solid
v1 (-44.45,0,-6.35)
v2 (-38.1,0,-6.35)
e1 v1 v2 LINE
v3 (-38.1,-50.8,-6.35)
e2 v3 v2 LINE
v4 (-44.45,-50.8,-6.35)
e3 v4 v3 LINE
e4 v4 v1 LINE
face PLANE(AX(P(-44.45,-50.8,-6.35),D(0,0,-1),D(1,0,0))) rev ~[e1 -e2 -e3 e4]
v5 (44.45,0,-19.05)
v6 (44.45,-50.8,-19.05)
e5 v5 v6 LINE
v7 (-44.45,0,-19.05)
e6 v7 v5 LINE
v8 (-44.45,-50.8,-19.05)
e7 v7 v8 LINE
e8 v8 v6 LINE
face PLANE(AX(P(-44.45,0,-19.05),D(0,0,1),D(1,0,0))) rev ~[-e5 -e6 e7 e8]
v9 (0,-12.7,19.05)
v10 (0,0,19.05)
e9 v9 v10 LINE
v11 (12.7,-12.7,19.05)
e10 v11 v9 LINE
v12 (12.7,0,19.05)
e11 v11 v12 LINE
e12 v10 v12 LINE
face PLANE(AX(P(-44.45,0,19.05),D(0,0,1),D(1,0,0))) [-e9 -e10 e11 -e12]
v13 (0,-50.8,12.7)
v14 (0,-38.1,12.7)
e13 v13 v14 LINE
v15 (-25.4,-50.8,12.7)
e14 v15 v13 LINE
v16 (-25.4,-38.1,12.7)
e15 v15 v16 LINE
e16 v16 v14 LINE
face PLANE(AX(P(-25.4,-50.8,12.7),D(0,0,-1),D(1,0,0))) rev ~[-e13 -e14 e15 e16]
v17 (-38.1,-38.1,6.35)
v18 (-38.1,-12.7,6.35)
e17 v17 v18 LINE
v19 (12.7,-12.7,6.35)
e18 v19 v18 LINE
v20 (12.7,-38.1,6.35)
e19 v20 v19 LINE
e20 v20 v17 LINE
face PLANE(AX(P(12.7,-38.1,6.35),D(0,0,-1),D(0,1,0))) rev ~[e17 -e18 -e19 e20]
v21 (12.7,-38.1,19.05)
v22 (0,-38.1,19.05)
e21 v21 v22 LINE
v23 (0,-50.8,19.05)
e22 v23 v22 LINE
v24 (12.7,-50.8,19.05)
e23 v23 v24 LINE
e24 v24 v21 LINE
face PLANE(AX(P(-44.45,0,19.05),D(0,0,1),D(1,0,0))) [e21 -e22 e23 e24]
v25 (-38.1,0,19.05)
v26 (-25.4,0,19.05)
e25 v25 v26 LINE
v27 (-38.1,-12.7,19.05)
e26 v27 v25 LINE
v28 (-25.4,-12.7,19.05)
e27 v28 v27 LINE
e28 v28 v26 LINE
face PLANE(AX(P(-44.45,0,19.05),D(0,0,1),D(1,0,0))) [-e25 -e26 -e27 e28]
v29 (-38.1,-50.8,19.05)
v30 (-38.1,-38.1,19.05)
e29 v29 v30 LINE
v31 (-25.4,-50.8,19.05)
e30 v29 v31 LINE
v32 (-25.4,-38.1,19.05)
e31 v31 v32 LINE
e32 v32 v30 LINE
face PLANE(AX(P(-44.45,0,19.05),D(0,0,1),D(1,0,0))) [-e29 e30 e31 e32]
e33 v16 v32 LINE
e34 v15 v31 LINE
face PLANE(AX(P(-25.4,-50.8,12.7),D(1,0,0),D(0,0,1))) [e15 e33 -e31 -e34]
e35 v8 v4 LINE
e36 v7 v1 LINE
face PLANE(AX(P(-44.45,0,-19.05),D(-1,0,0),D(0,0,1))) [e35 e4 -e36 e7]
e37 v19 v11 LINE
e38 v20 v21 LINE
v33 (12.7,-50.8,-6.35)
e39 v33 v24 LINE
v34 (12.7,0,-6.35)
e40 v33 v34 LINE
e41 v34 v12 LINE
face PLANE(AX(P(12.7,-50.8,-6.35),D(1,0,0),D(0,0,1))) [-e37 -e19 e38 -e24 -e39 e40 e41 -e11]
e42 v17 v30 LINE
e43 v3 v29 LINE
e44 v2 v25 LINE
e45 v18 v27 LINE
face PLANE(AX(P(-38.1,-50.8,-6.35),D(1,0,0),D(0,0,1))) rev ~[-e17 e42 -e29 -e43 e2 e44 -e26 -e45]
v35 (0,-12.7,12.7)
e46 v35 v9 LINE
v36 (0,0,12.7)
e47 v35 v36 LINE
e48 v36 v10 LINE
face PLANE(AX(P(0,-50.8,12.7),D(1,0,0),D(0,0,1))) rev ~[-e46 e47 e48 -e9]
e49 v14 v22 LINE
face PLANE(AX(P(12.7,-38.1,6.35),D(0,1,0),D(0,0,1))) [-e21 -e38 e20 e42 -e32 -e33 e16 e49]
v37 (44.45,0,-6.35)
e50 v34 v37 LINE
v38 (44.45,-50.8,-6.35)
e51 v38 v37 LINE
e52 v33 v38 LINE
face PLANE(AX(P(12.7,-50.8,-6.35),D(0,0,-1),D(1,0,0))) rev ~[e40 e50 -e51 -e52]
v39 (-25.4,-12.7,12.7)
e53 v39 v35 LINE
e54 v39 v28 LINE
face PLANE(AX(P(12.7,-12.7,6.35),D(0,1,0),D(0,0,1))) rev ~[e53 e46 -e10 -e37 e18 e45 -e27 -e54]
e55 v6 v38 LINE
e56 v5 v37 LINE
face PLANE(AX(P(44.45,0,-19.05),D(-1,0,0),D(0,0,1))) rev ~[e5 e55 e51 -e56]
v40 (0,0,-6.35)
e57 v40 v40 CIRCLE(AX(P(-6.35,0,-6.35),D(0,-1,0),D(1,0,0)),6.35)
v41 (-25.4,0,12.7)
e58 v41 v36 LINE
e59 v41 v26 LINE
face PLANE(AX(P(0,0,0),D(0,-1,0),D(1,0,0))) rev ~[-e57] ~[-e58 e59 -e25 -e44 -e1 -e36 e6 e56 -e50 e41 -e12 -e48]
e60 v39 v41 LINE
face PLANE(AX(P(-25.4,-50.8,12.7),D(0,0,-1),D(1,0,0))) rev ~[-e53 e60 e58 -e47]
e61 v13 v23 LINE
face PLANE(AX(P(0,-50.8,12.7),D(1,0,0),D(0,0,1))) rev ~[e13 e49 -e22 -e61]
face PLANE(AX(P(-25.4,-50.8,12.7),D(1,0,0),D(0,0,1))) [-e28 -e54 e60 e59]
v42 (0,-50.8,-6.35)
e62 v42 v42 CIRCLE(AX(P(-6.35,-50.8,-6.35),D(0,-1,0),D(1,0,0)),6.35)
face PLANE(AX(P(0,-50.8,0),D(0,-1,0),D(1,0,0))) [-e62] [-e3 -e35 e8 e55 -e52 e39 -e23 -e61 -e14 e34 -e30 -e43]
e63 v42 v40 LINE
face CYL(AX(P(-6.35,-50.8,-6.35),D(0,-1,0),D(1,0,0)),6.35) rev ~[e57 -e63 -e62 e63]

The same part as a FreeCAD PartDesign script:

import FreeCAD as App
import Part
import Sketcher
from FreeCAD import Vector
Q = App.Units.Quantity


def add_polygon(sketch, points):
    """Adds a closed chain of lines whose ends are joined by coincident constraints."""
    first, n = sketch.GeometryCount, len(points)
    for a, b in zip(points, points[1:] + points[:1]):
        sketch.addGeometry(Part.LineSegment(App.Vector(*a, 0), App.Vector(*b, 0)), False)
    for i in range(n):
        sketch.addConstraint(Sketcher.Constraint("Coincident", first + i, 2, first + (i + 1) % n, 1))

doc = App.newDocument("Part")
body = doc.addObject("PartDesign::Body", "Body")

# Sketch on XZ plane
sketch1 = body.newObject("Sketcher::SketchObject", "Sketch")
sketch1.AttachmentSupport = (doc.getObject("XZ_Plane"), [""])
sketch1.MapMode = "FlatFace"
add_polygon(sketch1, [(-44.45, 19.05), (-44.45, -19.05), (44.45, -19.05), (44.45, 19.05)])  # lines 0-3
sketch1.addConstraint(Sketcher.Constraint("Vertical", 0))
sketch1.addConstraint(Sketcher.Constraint("Horizontal", 1))
sketch1.addConstraint(Sketcher.Constraint("Vertical", 2))
sketch1.addConstraint(Sketcher.Constraint("Horizontal", 3))
sketch1.addConstraint(Sketcher.Constraint("Symmetric", 0, 2, 2, 2, -1, 1))
sketch1.addConstraint(Sketcher.Constraint("DistanceX", 1, 1, 1, 2, Q("3.5 in")))
sketch1.addConstraint(Sketcher.Constraint("DistanceY", 0, 2, 0, 1, Q("1.5 in")))
pad1 = body.newObject("PartDesign::Pad", "Pad")
pad1.Profile = sketch1
pad1.Length = Q("2 in")

# Sketch on XZ plane
sketch2 = body.newObject("Sketcher::SketchObject", "Sketch001")
sketch2.AttachmentSupport = (doc.getObject("XZ_Plane"), [""])
sketch2.MapMode = "FlatFace"
sketch2.AttachmentOffset = App.Placement(Vector(0, 0, 2 * 25.4), App.Rotation())
add_polygon(sketch2, [(12.7, 19.05), (12.7, -6.35), (44.45, -6.35), (44.45, 19.05)])  # lines 0-3
sketch2.addConstraint(Sketcher.Constraint("Vertical", 0))
sketch2.addConstraint(Sketcher.Constraint("Horizontal", 1))
sketch2.addConstraint(Sketcher.Constraint("Vertical", 2))
sketch2.addConstraint(Sketcher.Constraint("Horizontal", 3))
sketch2.addConstraint(Sketcher.Constraint("DistanceY", 0, 2, 0, 1, Q("1 in")))
sketch2.addConstraint(Sketcher.Constraint("DistanceX", 1, 1, 1, 2, Q("1.25 in")))
sketch2.addConstraint(Sketcher.Constraint("DistanceX", -1, 1, 0, 2, Q("0.5 in")))
sketch2.addConstraint(Sketcher.Constraint("DistanceY", 0, 2, -1, 1, Q("0.25 in")))
pocket1 = body.newObject("PartDesign::Pocket", "Pocket")
pocket1.Profile = sketch2
pocket1.Length = Q("2 in")

# Sketch on XZ plane
sketch3 = body.newObject("Sketcher::SketchObject", "Sketch002")
sketch3.AttachmentSupport = (doc.getObject("XZ_Plane"), [""])
sketch3.MapMode = "FlatFace"
sketch3.AttachmentOffset = App.Placement(Vector(0, 0, 2 * 25.4), App.Rotation())
add_polygon(sketch3, [(-25.4, 19.05), (-25.4, 12.7), (0, 12.7), (0, 19.05)])  # lines 0-3
sketch3.addConstraint(Sketcher.Constraint("Vertical", 0))
sketch3.addConstraint(Sketcher.Constraint("Horizontal", 1))
sketch3.addConstraint(Sketcher.Constraint("Vertical", 2))
sketch3.addConstraint(Sketcher.Constraint("Horizontal", 3))
sketch3.addConstraint(Sketcher.Constraint("PointOnObject", 1, 2, -2))
sketch3.addConstraint(Sketcher.Constraint("DistanceX", 1, 1, 1, 2, Q("1 in")))
sketch3.addConstraint(Sketcher.Constraint("DistanceY", 0, 2, 0, 1, Q("0.25 in")))
sketch3.addConstraint(Sketcher.Constraint("DistanceY", -1, 1, 0, 2, Q("0.5 in")))
pocket2 = body.newObject("PartDesign::Pocket", "Pocket001")
pocket2.Profile = sketch3
pocket2.Length = Q("2 in")

# Sketch on XZ plane
sketch4 = body.newObject("Sketcher::SketchObject", "Sketch003")
sketch4.AttachmentSupport = (doc.getObject("XZ_Plane"), [""])
sketch4.MapMode = "FlatFace"
sketch4.AttachmentOffset = App.Placement(Vector(0, 0, 2 * 25.4), App.Rotation())
add_polygon(sketch4, [(-44.45, 19.05), (-44.45, -6.35), (-38.1, -6.35), (-38.1, 19.05)])  # lines 0-3
sketch4.addConstraint(Sketcher.Constraint("Vertical", 0))
sketch4.addConstraint(Sketcher.Constraint("Horizontal", 1))
sketch4.addConstraint(Sketcher.Constraint("Vertical", 2))
sketch4.addConstraint(Sketcher.Constraint("Horizontal", 3))
sketch4.addConstraint(Sketcher.Constraint("DistanceY", 0, 2, 0, 1, Q("1 in")))
sketch4.addConstraint(Sketcher.Constraint("DistanceX", 1, 1, 1, 2, Q("0.25 in")))
sketch4.addConstraint(Sketcher.Constraint("DistanceX", 1, 2, -1, 1, Q("1.5 in")))
sketch4.addConstraint(Sketcher.Constraint("DistanceY", 0, 2, -1, 1, Q("0.25 in")))
pocket3 = body.newObject("PartDesign::Pocket", "Pocket002")
pocket3.Profile = sketch4
pocket3.Length = Q("2 in")

# Sketch on YZ plane
sketch5 = body.newObject("Sketcher::SketchObject", "Sketch004")
sketch5.AttachmentSupport = (doc.getObject("YZ_Plane"), [""])
sketch5.MapMode = "FlatFace"
sketch5.AttachmentOffset = App.Placement(Vector(0, 0, 0.5 * 25.4), App.Rotation())
add_polygon(sketch5, [(-38.1, 19.05), (-38.1, 6.35), (-12.7, 6.35), (-12.7, 19.05)])  # lines 0-3
sketch5.addConstraint(Sketcher.Constraint("Vertical", 0))
sketch5.addConstraint(Sketcher.Constraint("Horizontal", 1))
sketch5.addConstraint(Sketcher.Constraint("Vertical", 2))
sketch5.addConstraint(Sketcher.Constraint("Horizontal", 3))
sketch5.addConstraint(Sketcher.Constraint("DistanceX", 1, 1, 1, 2, Q("1 in")))
sketch5.addConstraint(Sketcher.Constraint("DistanceY", 0, 2, 0, 1, Q("0.5 in")))
sketch5.addConstraint(Sketcher.Constraint("DistanceX", 0, 2, -1, 1, Q("1.5 in")))
sketch5.addConstraint(Sketcher.Constraint("DistanceY", -1, 1, 0, 2, Q("0.25 in")))
pocket4 = body.newObject("PartDesign::Pocket", "Pocket003")
pocket4.Profile = sketch5
pocket4.Length = Q("2 in")

# Sketch on XZ plane
sketch6 = body.newObject("Sketcher::SketchObject", "Sketch005")
sketch6.AttachmentSupport = (doc.getObject("XZ_Plane"), [""])
sketch6.MapMode = "FlatFace"
sketch6.AttachmentOffset = App.Placement(Vector(0, 0, 2 * 25.4), App.Rotation())
sketch6.addGeometry(Part.Circle(Vector(-6.35, -6.35, 0), Vector(0, 0, 1), 6.35), False)
sketch6.addConstraint(Sketcher.Constraint("Diameter", 0, Q("0.5 in")))
sketch6.addConstraint(Sketcher.Constraint("DistanceX", 0, 3, -1, 1, Q("0.25 in")))
sketch6.addConstraint(Sketcher.Constraint("DistanceY", 0, 3, -1, 1, Q("0.25 in")))
pocket5 = body.newObject("PartDesign::Pocket", "Pocket004")
pocket5.Profile = sketch6
pocket5.Length = Q("2 in")

doc.recompute()
